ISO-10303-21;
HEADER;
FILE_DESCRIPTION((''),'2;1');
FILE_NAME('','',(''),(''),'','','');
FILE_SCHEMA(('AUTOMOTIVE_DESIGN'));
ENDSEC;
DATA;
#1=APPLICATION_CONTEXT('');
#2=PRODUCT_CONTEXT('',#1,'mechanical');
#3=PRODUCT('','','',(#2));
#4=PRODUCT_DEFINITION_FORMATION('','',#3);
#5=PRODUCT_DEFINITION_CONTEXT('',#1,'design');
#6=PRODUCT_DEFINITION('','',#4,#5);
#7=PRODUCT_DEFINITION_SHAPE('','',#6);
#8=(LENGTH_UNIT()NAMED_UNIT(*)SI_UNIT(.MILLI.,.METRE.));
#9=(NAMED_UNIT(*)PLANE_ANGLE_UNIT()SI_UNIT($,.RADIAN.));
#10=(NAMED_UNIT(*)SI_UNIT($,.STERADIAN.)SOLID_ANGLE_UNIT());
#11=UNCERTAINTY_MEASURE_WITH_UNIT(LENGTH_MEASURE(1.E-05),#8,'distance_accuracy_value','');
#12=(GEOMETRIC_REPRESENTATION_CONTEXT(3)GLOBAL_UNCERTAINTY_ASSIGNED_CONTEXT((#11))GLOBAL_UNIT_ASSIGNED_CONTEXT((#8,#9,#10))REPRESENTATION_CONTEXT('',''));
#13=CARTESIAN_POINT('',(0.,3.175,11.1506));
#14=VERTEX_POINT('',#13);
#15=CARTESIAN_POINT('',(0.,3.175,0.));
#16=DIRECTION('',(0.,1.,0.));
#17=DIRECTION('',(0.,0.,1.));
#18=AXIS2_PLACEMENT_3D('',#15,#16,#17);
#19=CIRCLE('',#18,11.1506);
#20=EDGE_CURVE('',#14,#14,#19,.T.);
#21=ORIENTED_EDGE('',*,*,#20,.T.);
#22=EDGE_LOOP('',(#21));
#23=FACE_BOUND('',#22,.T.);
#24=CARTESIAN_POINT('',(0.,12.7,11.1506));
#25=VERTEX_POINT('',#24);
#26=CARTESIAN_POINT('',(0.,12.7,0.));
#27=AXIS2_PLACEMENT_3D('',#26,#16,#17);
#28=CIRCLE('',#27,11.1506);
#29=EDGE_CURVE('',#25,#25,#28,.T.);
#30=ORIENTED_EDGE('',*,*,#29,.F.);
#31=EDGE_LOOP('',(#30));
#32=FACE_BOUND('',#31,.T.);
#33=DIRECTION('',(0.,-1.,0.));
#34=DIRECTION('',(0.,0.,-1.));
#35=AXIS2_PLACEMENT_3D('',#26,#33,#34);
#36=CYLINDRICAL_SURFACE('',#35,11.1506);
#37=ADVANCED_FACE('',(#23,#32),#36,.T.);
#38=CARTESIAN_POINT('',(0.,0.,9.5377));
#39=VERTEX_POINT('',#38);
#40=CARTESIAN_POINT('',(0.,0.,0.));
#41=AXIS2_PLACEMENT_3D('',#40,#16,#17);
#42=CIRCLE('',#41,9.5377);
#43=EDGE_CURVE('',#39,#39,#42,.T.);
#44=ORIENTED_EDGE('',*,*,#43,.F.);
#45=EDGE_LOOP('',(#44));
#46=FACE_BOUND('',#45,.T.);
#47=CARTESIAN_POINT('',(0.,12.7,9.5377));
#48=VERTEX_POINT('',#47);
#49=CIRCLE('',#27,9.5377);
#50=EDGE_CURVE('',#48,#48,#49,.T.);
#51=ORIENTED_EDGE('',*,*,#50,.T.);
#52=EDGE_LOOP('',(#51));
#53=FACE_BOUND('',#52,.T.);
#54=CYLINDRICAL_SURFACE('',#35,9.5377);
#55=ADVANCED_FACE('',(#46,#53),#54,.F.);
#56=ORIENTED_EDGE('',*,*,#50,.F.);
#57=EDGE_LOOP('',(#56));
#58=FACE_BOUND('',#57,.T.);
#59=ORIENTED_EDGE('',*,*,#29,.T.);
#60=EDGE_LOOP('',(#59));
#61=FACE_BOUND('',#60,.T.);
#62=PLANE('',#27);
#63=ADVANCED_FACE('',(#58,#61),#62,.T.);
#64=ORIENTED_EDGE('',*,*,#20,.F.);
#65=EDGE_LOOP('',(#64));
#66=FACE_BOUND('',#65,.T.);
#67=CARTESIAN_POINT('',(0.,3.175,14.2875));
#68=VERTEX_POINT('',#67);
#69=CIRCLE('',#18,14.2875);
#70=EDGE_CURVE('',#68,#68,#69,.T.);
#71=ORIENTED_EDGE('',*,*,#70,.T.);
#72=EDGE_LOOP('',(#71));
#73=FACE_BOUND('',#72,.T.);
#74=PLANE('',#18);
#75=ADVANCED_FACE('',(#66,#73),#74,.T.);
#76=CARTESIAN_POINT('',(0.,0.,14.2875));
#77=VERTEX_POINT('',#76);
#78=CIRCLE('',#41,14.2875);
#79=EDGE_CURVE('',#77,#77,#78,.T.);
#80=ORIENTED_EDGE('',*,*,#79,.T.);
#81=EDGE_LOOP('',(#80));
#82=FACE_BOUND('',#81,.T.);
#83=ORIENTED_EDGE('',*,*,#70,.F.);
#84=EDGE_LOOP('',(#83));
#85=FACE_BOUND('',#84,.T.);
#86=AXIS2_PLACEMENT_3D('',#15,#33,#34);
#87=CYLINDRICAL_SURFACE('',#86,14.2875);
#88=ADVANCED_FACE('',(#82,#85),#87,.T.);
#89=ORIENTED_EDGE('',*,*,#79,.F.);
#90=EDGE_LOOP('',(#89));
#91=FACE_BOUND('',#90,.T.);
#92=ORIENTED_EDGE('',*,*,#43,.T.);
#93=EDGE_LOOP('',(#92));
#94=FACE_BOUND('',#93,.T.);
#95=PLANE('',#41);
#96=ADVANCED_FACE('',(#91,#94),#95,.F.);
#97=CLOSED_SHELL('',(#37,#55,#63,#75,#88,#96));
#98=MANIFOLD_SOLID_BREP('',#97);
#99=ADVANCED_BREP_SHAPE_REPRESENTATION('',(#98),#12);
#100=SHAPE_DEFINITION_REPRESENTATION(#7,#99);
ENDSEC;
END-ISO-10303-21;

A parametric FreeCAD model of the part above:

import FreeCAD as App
import Part
import Sketcher
Q = App.Units.Quantity

doc = App.newDocument("Part")
params = doc.addObject("Spreadsheet::Sheet", "Params")
for row, (alias, value) in enumerate([
    ("sketch1_diameter", "0.878 in"),
    ("sketch1_diameter2", "0.751 in"),
    ("pad1_length", "0.5 in"),
    ("sketch2_diameter", "1.125 in"),
    ("sketch2_diameter2", "0.878 in"),
    ("pad2_length", "0.125 in"),
], start=1):
    params.set(f"A{row}", alias)
    params.set(f"B{row}", "=" + value)
    params.setAlias(f"B{row}", alias)

body = doc.addObject("PartDesign::Body", "Body")

sketch1 = body.newObject("Sketcher::SketchObject", "Sketch")
sketch1.AttachmentSupport = (doc.getObject("XZ_Plane"), [""])
sketch1.MapMode = "FlatFace"
sketch1.addGeometry([
    Part.Circle(App.Vector(0, 0, 0), App.Vector(0, 0, 1), 11),
    Part.Circle(App.Vector(0, 0, 0), App.Vector(0, 0, 1), 10),
], False)
sketch1.addConstraint([
    Sketcher.Constraint("Coincident", 0, 3, -1, 1),
    Sketcher.Constraint("Coincident", 1, 3, -1, 1),
    Sketcher.Constraint("Diameter", 0, Q("0.878 in")),
    Sketcher.Constraint("Diameter", 1, Q("0.751 in")),
])
sketch1.setExpression("Constraints[2]", "Params.sketch1_diameter")
sketch1.setExpression("Constraints[3]", "Params.sketch1_diameter2")
pad1 = body.newObject("PartDesign::Pad", "Pad")
pad1.Profile = sketch1
pad1.setExpression("Length", "Params.pad1_length")
pad1.Reversed = True

sketch2 = body.newObject("Sketcher::SketchObject", "Sketch001")
sketch2.AttachmentSupport = (doc.getObject("XZ_Plane"), [""])
sketch2.MapMode = "FlatFace"
sketch2.addGeometry([
    Part.Circle(App.Vector(0, 0, 0), App.Vector(0, 0, 1), 14),
    Part.Circle(App.Vector(0, 0, 0), App.Vector(0, 0, 1), 11),
], False)
sketch2.addConstraint([
    Sketcher.Constraint("Coincident", 0, 3, -1, 1),
    Sketcher.Constraint("Coincident", 1, 3, -1, 1),
    Sketcher.Constraint("Diameter", 0, Q("1.125 in")),
    Sketcher.Constraint("Diameter", 1, Q("0.878 in")),
])
sketch2.setExpression("Constraints[2]", "Params.sketch2_diameter")
sketch2.setExpression("Constraints[3]", "Params.sketch2_diameter2")
pad2 = body.newObject("PartDesign::Pad", "Pad001")
pad2.Profile = sketch2
pad2.setExpression("Length", "Params.pad2_length")
pad2.Reversed = True

doc.recompute()
